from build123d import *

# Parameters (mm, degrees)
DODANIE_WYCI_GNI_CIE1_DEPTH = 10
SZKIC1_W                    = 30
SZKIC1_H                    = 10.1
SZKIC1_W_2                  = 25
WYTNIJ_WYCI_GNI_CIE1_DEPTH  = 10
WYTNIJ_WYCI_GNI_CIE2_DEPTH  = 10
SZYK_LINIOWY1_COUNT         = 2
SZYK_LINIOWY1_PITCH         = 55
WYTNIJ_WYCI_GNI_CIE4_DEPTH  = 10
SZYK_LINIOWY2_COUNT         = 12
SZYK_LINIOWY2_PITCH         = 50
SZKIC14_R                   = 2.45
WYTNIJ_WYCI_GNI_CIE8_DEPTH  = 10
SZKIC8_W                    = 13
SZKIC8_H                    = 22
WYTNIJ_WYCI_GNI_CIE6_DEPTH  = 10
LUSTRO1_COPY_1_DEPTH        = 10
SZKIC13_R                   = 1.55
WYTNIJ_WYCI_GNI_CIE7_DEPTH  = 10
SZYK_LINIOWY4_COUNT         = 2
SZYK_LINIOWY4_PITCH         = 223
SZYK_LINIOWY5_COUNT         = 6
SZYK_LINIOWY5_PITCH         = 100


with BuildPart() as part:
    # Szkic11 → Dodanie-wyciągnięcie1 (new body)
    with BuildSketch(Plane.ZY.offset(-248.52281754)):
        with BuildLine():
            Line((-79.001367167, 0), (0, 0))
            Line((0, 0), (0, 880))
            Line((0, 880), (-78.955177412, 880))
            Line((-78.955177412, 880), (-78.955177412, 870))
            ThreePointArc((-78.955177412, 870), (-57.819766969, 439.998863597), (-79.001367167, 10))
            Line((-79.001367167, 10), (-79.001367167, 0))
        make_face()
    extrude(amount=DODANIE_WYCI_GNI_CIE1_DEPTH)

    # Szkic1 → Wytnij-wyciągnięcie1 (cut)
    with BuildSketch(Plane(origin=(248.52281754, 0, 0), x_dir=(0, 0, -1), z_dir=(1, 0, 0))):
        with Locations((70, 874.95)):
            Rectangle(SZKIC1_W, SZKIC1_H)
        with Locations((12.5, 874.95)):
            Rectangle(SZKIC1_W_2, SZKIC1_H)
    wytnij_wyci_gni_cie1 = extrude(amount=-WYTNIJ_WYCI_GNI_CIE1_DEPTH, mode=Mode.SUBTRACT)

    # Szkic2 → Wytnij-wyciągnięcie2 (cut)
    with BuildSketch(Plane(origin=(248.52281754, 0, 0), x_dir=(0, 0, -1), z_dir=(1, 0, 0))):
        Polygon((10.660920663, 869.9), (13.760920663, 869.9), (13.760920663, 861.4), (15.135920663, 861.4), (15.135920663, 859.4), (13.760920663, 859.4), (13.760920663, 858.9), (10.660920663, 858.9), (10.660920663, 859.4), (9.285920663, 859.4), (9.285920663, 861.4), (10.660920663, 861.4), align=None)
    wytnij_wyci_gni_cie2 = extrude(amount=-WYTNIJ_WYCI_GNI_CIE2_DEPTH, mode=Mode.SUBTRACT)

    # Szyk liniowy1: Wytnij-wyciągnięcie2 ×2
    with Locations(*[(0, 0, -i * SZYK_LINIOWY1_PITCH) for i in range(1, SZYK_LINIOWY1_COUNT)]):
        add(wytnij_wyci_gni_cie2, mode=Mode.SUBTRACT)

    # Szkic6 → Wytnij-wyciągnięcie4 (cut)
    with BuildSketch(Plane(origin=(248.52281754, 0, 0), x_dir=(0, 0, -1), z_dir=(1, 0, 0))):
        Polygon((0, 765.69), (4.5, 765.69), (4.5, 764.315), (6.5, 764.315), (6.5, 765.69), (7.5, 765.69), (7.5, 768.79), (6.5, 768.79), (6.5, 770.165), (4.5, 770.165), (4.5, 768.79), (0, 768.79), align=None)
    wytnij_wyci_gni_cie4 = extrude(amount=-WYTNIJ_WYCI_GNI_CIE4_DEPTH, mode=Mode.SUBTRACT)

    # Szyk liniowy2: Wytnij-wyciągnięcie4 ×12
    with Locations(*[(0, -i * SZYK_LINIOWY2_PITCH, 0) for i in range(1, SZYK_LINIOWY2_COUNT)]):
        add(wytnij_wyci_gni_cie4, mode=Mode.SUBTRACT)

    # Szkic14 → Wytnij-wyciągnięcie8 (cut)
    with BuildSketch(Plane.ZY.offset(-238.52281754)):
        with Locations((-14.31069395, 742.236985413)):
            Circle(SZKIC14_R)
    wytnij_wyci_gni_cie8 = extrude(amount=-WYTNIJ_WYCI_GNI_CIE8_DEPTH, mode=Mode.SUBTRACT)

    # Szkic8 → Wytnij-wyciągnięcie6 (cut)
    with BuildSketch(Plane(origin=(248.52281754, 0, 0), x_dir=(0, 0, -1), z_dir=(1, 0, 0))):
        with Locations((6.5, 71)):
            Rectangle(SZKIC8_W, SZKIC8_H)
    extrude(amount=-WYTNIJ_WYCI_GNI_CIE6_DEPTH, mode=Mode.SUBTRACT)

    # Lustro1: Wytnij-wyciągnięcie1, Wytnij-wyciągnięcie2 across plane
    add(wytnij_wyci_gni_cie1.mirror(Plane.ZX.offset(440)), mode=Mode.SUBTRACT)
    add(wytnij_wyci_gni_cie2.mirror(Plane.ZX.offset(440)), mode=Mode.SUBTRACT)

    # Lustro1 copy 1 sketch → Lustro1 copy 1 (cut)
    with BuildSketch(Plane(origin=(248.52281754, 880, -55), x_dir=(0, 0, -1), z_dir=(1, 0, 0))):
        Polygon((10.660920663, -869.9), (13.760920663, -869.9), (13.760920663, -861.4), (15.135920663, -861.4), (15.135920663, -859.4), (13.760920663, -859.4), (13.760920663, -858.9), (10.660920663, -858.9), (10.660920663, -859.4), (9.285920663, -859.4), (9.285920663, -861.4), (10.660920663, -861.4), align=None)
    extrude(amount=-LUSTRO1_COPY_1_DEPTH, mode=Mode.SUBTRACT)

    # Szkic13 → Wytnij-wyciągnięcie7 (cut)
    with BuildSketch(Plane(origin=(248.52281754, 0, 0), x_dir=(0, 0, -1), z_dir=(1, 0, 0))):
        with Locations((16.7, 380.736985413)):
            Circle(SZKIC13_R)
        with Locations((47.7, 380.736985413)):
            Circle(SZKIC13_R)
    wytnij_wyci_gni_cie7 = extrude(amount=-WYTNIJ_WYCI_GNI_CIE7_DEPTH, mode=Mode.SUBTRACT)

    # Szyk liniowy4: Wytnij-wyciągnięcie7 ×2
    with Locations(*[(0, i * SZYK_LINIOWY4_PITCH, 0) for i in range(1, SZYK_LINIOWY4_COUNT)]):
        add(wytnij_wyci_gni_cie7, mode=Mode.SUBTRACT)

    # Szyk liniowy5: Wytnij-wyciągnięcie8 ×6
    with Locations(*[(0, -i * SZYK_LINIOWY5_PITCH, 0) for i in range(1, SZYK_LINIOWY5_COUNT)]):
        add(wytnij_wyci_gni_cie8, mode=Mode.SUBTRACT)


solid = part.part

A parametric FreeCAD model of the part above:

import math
import FreeCAD as App
import Part
import Sketcher
Q = App.Units.Quantity

doc = App.newDocument("Part")
body = doc.addObject("PartDesign::Body", "Body")

# Sketch on YZ plane
sketch1 = doc.addObject("Sketcher::SketchObject", "Sketch")
body.addObject(sketch1)
sketch1.AttachmentSupport = (doc.YZ_Plane, [""])
sketch1.MapMode = "FlatFace"
sketch1.AttachmentOffset = App.Placement(App.Vector(0, 0, 248.522818), App.Rotation())
sketch1.addGeometry([
    Part.LineSegment(App.Vector(0, -79, 0), App.Vector(0, 0, 0)),  # 0
    Part.LineSegment(App.Vector(0, 0, 0), App.Vector(880, 0, 0)),  # 1
    Part.LineSegment(App.Vector(880, 0, 0), App.Vector(880, -79, 0)),  # 2
    Part.LineSegment(App.Vector(880, -79, 0), App.Vector(870, -79, 0)),  # 3
    Part.ArcOfCircle(Part.Circle(App.Vector(440, -4438, 0), App.Vector(0, 0, 1), 4380), math.radians(84.37), math.radians(95.64)),  # 4
    Part.LineSegment(App.Vector(10, -79, 0), App.Vector(0, -79, 0)),  # 5
], False)
sketch1.addConstraint([
    Sketcher.Constraint("Coincident", 0, 2, 1, 1),
    Sketcher.Constraint("Coincident", 1, 2, 2, 1),
    Sketcher.Constraint("Coincident", 2, 2, 3, 1),
    Sketcher.Constraint("Coincident", 3, 2, 4, 1),
    Sketcher.Constraint("Coincident", 4, 2, 5, 1),
    Sketcher.Constraint("Coincident", 5, 2, 0, 1),
    Sketcher.Constraint("Vertical", 0),
    Sketcher.Constraint("Horizontal", 1),
    Sketcher.Constraint("Vertical", 2),
    Sketcher.Constraint("Horizontal", 3),
    Sketcher.Constraint("Horizontal", 5),
    Sketcher.Constraint("Coincident", 0, 2, -1, 1),
    Sketcher.Constraint("Equal", 3, 5),
    Sketcher.Constraint("DistanceX", 1, 1, 1, 2, Q("880 mm")),
    Sketcher.Constraint("DistanceX", 3, 2, 3, 1, Q("10 mm")),
    Sketcher.Constraint("Radius", 4, Q("4379.980528 mm")),
    Sketcher.Constraint("DistanceY", 0, 1, 0, 2, Q("79.001367 mm")),
    Sketcher.Constraint("DistanceY", 2, 2, 2, 1, Q("78.955177 mm")),
])
pad1 = doc.addObject("PartDesign::Pad", "Pad")
body.addObject(pad1)
pad1.Profile = sketch1
pad1.Length = 10
pad1.Reversed = True

# Sketch on YZ plane
sketch2 = doc.addObject("Sketcher::SketchObject", "Sketch001")
body.addObject(sketch2)
sketch2.AttachmentSupport = (doc.YZ_Plane, [""])
sketch2.MapMode = "FlatFace"
sketch2.AttachmentOffset = App.Placement(App.Vector(0, 0, 248.522818), App.Rotation())
sketch2.addGeometry([
    Part.LineSegment(App.Vector(880, -55, 0), App.Vector(870, -55, 0)),  # 0
    Part.LineSegment(App.Vector(870, -55, 0), App.Vector(870, -85, 0)),  # 1
    Part.LineSegment(App.Vector(870, -85, 0), App.Vector(880, -85, 0)),  # 2
    Part.LineSegment(App.Vector(880, -85, 0), App.Vector(880, -55, 0)),  # 3
    Part.LineSegment(App.Vector(880, 0, 0), App.Vector(870, 0, 0)),  # 4
    Part.LineSegment(App.Vector(870, 0, 0), App.Vector(870, -25, 0)),  # 5
    Part.LineSegment(App.Vector(870, -25, 0), App.Vector(880, -25, 0)),  # 6
    Part.LineSegment(App.Vector(880, -25, 0), App.Vector(880, 0, 0)),  # 7
], False)
sketch2.addConstraint([
    Sketcher.Constraint("Coincident", 0, 2, 1, 1),
    Sketcher.Constraint("Coincident", 1, 2, 2, 1),
    Sketcher.Constraint("Coincident", 2, 2, 3, 1),
    Sketcher.Constraint("Coincident", 3, 2, 0, 1),
    Sketcher.Constraint("Coincident", 4, 2, 5, 1),
    Sketcher.Constraint("Coincident", 5, 2, 6, 1),
    Sketcher.Constraint("Coincident", 6, 2, 7, 1),
    Sketcher.Constraint("Coincident", 7, 2, 4, 1),
    Sketcher.Constraint("Horizontal", 0),
    Sketcher.Constraint("Vertical", 1),
    Sketcher.Constraint("Horizontal", 2),
    Sketcher.Constraint("Vertical", 3),
    Sketcher.Constraint("Horizontal", 4),
    Sketcher.Constraint("Vertical", 5),
    Sketcher.Constraint("Horizontal", 6),
    Sketcher.Constraint("Vertical", 7),
    Sketcher.Constraint("PointOnObject", 4, 2, -1),
    Sketcher.Constraint("Vertical", 1, 2, 4, 2),
    Sketcher.Constraint("Vertical", 3, 2, 6, 2),
    Sketcher.Constraint("DistanceY", 1, 2, 1, 1, Q("30 mm")),
    Sketcher.Constraint("DistanceY", 5, 2, 5, 1, Q("25 mm")),
    Sketcher.Constraint("DistanceX", 0, 2, 0, 1, Q("10.1 mm")),
    Sketcher.Constraint("DistanceY", 0, 2, -1, 1, Q("55 mm")),
    Sketcher.Constraint("DistanceX", -1, 1, 2, 2, Q("880 mm")),
])
pocket1 = doc.addObject("PartDesign::Pocket", "Pocket")
body.addObject(pocket1)
pocket1.Profile = sketch2
pocket1.Length = 10

# Sketch on YZ plane
sketch3 = doc.addObject("Sketcher::SketchObject", "Sketch002")
body.addObject(sketch3)
sketch3.AttachmentSupport = (doc.YZ_Plane, [""])
sketch3.MapMode = "FlatFace"
sketch3.AttachmentOffset = App.Placement(App.Vector(0, 0, 248.522818), App.Rotation())
sketch3.addGeometry([
    Part.LineSegment(App.Vector(869.9, -13.8, 0), App.Vector(869.9, -10.7, 0)),  # 0
    Part.LineSegment(App.Vector(869.9, -10.7, 0), App.Vector(861.4, -10.7, 0)),  # 1
    Part.LineSegment(App.Vector(861.4, -10.7, 0), App.Vector(861.4, -9.3, 0)),  # 2
    Part.LineSegment(App.Vector(861.4, -9.3, 0), App.Vector(859.4, -9.3, 0)),  # 3
    Part.LineSegment(App.Vector(859.4, -9.3, 0), App.Vector(859.4, -10.7, 0)),  # 4
    Part.LineSegment(App.Vector(859.4, -10.7, 0), App.Vector(858.9, -10.7, 0)),  # 5
    Part.LineSegment(App.Vector(858.9, -10.7, 0), App.Vector(858.9, -13.8, 0)),  # 6
    Part.LineSegment(App.Vector(858.9, -13.8, 0), App.Vector(859.4, -13.8, 0)),  # 7
    Part.LineSegment(App.Vector(859.4, -13.8, 0), App.Vector(859.4, -15.1, 0)),  # 8
    Part.LineSegment(App.Vector(859.4, -15.1, 0), App.Vector(861.4, -15.1, 0)),  # 9
    Part.LineSegment(App.Vector(861.4, -15.1, 0), App.Vector(861.4, -13.8, 0)),  # 10
    Part.LineSegment(App.Vector(861.4, -13.8, 0), App.Vector(869.9, -13.8, 0)),  # 11
], False)
sketch3.addConstraint([
    Sketcher.Constraint("Coincident", 0, 2, 1, 1),
    Sketcher.Constraint("Coincident", 1, 2, 2, 1),
    Sketcher.Constraint("Coincident", 2, 2, 3, 1),
    Sketcher.Constraint("Coincident", 3, 2, 4, 1),
    Sketcher.Constraint("Coincident", 4, 2, 5, 1),
    Sketcher.Constraint("Coincident", 5, 2, 6, 1),
    Sketcher.Constraint("Coincident", 6, 2, 7, 1),
    Sketcher.Constraint("Coincident", 7, 2, 8, 1),
    Sketcher.Constraint("Coincident", 8, 2, 9, 1),
    Sketcher.Constraint("Coincident", 9, 2, 10, 1),
    Sketcher.Constraint("Coincident", 10, 2, 11, 1),
    Sketcher.Constraint("Coincident", 11, 2, 0, 1),
    Sketcher.Constraint("Vertical", 0),
    Sketcher.Constraint("Horizontal", 1),
    Sketcher.Constraint("Vertical", 2),
    Sketcher.Constraint("Horizontal", 3),
    Sketcher.Constraint("Vertical", 4),
    Sketcher.Constraint("Horizontal", 5),
    Sketcher.Constraint("Vertical", 6),
    Sketcher.Constraint("Horizontal", 7),
    Sketcher.Constraint("Vertical", 8),
    Sketcher.Constraint("Horizontal", 9),
    Sketcher.Constraint("Vertical", 10),
    Sketcher.Constraint("Horizontal", 11),
    Sketcher.Constraint("Horizontal", 1, 2, 4, 2),
    Sketcher.Constraint("Horizontal", 7, 2, 10, 2),
    Sketcher.Constraint("Vertical", 4, 2, 7, 2),
    Sketcher.Constraint("Vertical", 2, 2, 9, 2),
    Sketcher.Constraint("Equal", 4, 8),
    Sketcher.Constraint("DistanceX", 3, 2, 3, 1, Q("2 mm")),
    Sketcher.Constraint("DistanceX", 1, 2, 1, 1, Q("8.5 mm")),
    Sketcher.Constraint("DistanceX", 5, 2, 5, 1, Q("0.5 mm")),
    Sketcher.Constraint("DistanceY", 0, 1, 0, 2, Q("3.1 mm")),
    Sketcher.Constraint("DistanceX", -1, 1, 0, 2, Q("869.9 mm")),
    Sketcher.Constraint("DistanceY", 2, 1, 2, 2, Q("1.375 mm")),
    Sketcher.Constraint("DistanceY", 0, 2, -1, 1, Q("10.660921 mm")),
])
pocket2 = doc.addObject("PartDesign::Pocket", "Pocket001")
body.addObject(pocket2)
pocket2.Profile = sketch3
pocket2.Length = 10
doc.recompute()

linearpattern = doc.addObject("PartDesign::LinearPattern", "LinearPattern")
body.addObject(linearpattern)
linearpattern.Originals = [pocket2]
linearpattern.Direction = (doc.Z_Axis, [""])
linearpattern.Mode = "offset"
linearpattern.Offset = 55
linearpattern.Occurrences = 2
linearpattern.Reversed = True
body.Tip = linearpattern

# Sketch on YZ plane
sketch4 = doc.addObject("Sketcher::SketchObject", "Sketch003")
body.addObject(sketch4)
sketch4.AttachmentSupport = (doc.YZ_Plane, [""])
sketch4.MapMode = "FlatFace"
sketch4.AttachmentOffset = App.Placement(App.Vector(0, 0, 248.522818), App.Rotation())
sketch4.addGeometry([
    Part.LineSegment(App.Vector(765.7, 0, 0), App.Vector(765.7, -4.5, 0)),  # 0
    Part.LineSegment(App.Vector(765.7, -4.5, 0), App.Vector(764.3, -4.5, 0)),  # 1
    Part.LineSegment(App.Vector(764.3, -4.5, 0), App.Vector(764.3, -6.5, 0)),  # 2
    Part.LineSegment(App.Vector(764.3, -6.5, 0), App.Vector(765.7, -6.5, 0)),  # 3
    Part.LineSegment(App.Vector(765.7, -6.5, 0), App.Vector(765.7, -7.5, 0)),  # 4
    Part.LineSegment(App.Vector(765.7, -7.5, 0), App.Vector(768.8, -7.5, 0)),  # 5
    Part.LineSegment(App.Vector(768.8, -7.5, 0), App.Vector(768.8, -6.5, 0)),  # 6
    Part.LineSegment(App.Vector(768.8, -6.5, 0), App.Vector(770.2, -6.5, 0)),  # 7
    Part.LineSegment(App.Vector(770.2, -6.5, 0), App.Vector(770.2, -4.5, 0)),  # 8
    Part.LineSegment(App.Vector(770.2, -4.5, 0), App.Vector(768.8, -4.5, 0)),  # 9
    Part.LineSegment(App.Vector(768.8, -4.5, 0), App.Vector(768.8, 0, 0)),  # 10
    Part.LineSegment(App.Vector(768.8, 0, 0), App.Vector(765.7, 0, 0)),  # 11
], False)
sketch4.addConstraint([
    Sketcher.Constraint("Coincident", 0, 2, 1, 1),
    Sketcher.Constraint("Coincident", 1, 2, 2, 1),
    Sketcher.Constraint("Coincident", 2, 2, 3, 1),
    Sketcher.Constraint("Coincident", 3, 2, 4, 1),
    Sketcher.Constraint("Coincident", 4, 2, 5, 1),
    Sketcher.Constraint("Coincident", 5, 2, 6, 1),
    Sketcher.Constraint("Coincident", 6, 2, 7, 1),
    Sketcher.Constraint("Coincident", 7, 2, 8, 1),
    Sketcher.Constraint("Coincident", 8, 2, 9, 1),
    Sketcher.Constraint("Coincident", 9, 2, 10, 1),
    Sketcher.Constraint("Coincident", 10, 2, 11, 1),
    Sketcher.Constraint("Coincident", 11, 2, 0, 1),
    Sketcher.Constraint("Vertical", 0),
    Sketcher.Constraint("Horizontal", 1),
    Sketcher.Constraint("Vertical", 2),
    Sketcher.Constraint("Horizontal", 3),
    Sketcher.Constraint("Vertical", 4),
    Sketcher.Constraint("Horizontal", 5),
    Sketcher.Constraint("Vertical", 6),
    Sketcher.Constraint("Horizontal", 7),
    Sketcher.Constraint("Vertical", 8),
    Sketcher.Constraint("Horizontal", 9),
    Sketcher.Constraint("Vertical", 10),
    Sketcher.Constraint("Horizontal", 11),
    Sketcher.Constraint("PointOnObject", 10, 2, -1),
    Sketcher.Constraint("Horizontal", 3, 2, 6, 2),
    Sketcher.Constraint("Horizontal", 1, 2, 8, 2),
    Sketcher.Constraint("Vertical", 0, 2, 3, 2),
    Sketcher.Constraint("Vertical", 6, 2, 9, 2),
    Sketcher.Constraint("Equal", 3, 7),
    Sketcher.Constraint("DistanceY", 2, 2, 2, 1, Q("2 mm")),
    Sketcher.Constraint("DistanceY", 4, 2, 4, 1, Q("1 mm")),
    Sketcher.Constraint("DistanceX", 5, 1, 5, 2, Q("3.1 mm")),
    Sketcher.Constraint("DistanceY", 0, 2, 0, 1, Q("4.5 mm")),
    Sketcher.Constraint("DistanceX", 1, 2, 1, 1, Q("1.375 mm")),
    Sketcher.Constraint("DistanceX", -1, 1, 0, 2, Q("765.69 mm")),
])
pocket3 = doc.addObject("PartDesign::Pocket", "Pocket002")
body.addObject(pocket3)
pocket3.Profile = sketch4
pocket3.Length = 10
doc.recompute()

linearpattern2 = doc.addObject("PartDesign::LinearPattern", "LinearPattern001")
body.addObject(linearpattern2)
linearpattern2.Originals = [pocket3]
linearpattern2.Direction = (doc.Y_Axis, [""])
linearpattern2.Mode = "offset"
linearpattern2.Offset = 50
linearpattern2.Occurrences = 12
linearpattern2.Reversed = True
body.Tip = linearpattern2

# Sketch on YZ plane
sketch5 = doc.addObject("Sketcher::SketchObject", "Sketch004")
body.addObject(sketch5)
sketch5.AttachmentSupport = (doc.YZ_Plane, [""])
sketch5.MapMode = "FlatFace"
sketch5.AttachmentOffset = App.Placement(App.Vector(0, 0, 238.522818), App.Rotation())
sketch5.addGeometry(Part.Circle(App.Vector(742.2, -14.3, 0), App.Vector(0, 0, 1), 2.5), False)
sketch5.addConstraint([
    Sketcher.Constraint("Diameter", 0, Q("4.9 mm")),
    Sketcher.Constraint("DistanceX", -1, 1, 0, 3, Q("742.236985 mm")),
    Sketcher.Constraint("DistanceY", 0, 3, -1, 1, Q("14.310694 mm")),
])
pocket4 = doc.addObject("PartDesign::Pocket", "Pocket003")
body.addObject(pocket4)
pocket4.Profile = sketch5
pocket4.Length = 10
pocket4.Reversed = True

# Sketch on YZ plane
sketch6 = doc.addObject("Sketcher::SketchObject", "Sketch005")
body.addObject(sketch6)
sketch6.AttachmentSupport = (doc.YZ_Plane, [""])
sketch6.MapMode = "FlatFace"
sketch6.AttachmentOffset = App.Placement(App.Vector(0, 0, 248.522818), App.Rotation())
sketch6.addGeometry([
    Part.LineSegment(App.Vector(82, 0, 0), App.Vector(60, 0, 0)),
    Part.LineSegment(App.Vector(60, 0, 0), App.Vector(60, -13, 0)),
    Part.LineSegment(App.Vector(60, -13, 0), App.Vector(82, -13, 0)),
    Part.LineSegment(App.Vector(82, -13, 0), App.Vector(82, 0, 0)),
], False)
sketch6.addConstraint([
    Sketcher.Constraint("Coincident", 0, 2, 1, 1),
    Sketcher.Constraint("Coincident", 1, 2, 2, 1),
    Sketcher.Constraint("Coincident", 2, 2, 3, 1),
    Sketcher.Constraint("Coincident", 3, 2, 0, 1),
    Sketcher.Constraint("Horizontal", 0),
    Sketcher.Constraint("Vertical", 1),
    Sketcher.Constraint("Horizontal", 2),
    Sketcher.Constraint("Vertical", 3),
    Sketcher.Constraint("PointOnObject", 0, 2, -1),
    Sketcher.Constraint("DistanceX", 0, 2, 0, 1, Q("22 mm")),
    Sketcher.Constraint("DistanceY", 1, 2, 1, 1, Q("13 mm")),
    Sketcher.Constraint("DistanceX", -1, 1, 0, 2, Q("60 mm")),
])
pocket5 = doc.addObject("PartDesign::Pocket", "Pocket004")
body.addObject(pocket5)
pocket5.Profile = sketch6
pocket5.Length = 10
doc.recompute()

datumplane = doc.addObject("PartDesign::Plane", "DatumPlane")
body.addObject(datumplane)
datumplane.AttachmentSupport = (doc.XZ_Plane, [""])
datumplane.MapMode = "FlatFace"
datumplane.AttachmentOffset = App.Placement(App.Vector(0, 0, -440), App.Rotation())
mirrored = doc.addObject("PartDesign::Mirrored", "Mirrored")
body.addObject(mirrored)
mirrored.Originals = [pocket1, pocket2]
mirrored.MirrorPlane = (datumplane, [""])
body.Tip = mirrored

# Sketch on YZ plane
sketch7 = doc.addObject("Sketcher::SketchObject", "Sketch006")
body.addObject(sketch7)
sketch7.AttachmentSupport = (doc.YZ_Plane, [""])
sketch7.MapMode = "FlatFace"
sketch7.AttachmentOffset = App.Placement(App.Vector(0, 0, 248.522818), App.Rotation())
sketch7.addGeometry([
    Part.LineSegment(App.Vector(10.1, -65.7, 0), App.Vector(10.1, -68.8, 0)),  # 0
    Part.LineSegment(App.Vector(10.1, -68.8, 0), App.Vector(18.6, -68.8, 0)),  # 1
    Part.LineSegment(App.Vector(18.6, -68.8, 0), App.Vector(18.6, -70.1, 0)),  # 2
    Part.LineSegment(App.Vector(18.6, -70.1, 0), App.Vector(20.6, -70.1, 0)),  # 3
    Part.LineSegment(App.Vector(20.6, -70.1, 0), App.Vector(20.6, -68.8, 0)),  # 4
    Part.LineSegment(App.Vector(20.6, -68.8, 0), App.Vector(21.1, -68.8, 0)),  # 5
    Part.LineSegment(App.Vector(21.1, -68.8, 0), App.Vector(21.1, -65.7, 0)),  # 6
    Part.LineSegment(App.Vector(21.1, -65.7, 0), App.Vector(20.6, -65.7, 0)),  # 7
    Part.LineSegment(App.Vector(20.6, -65.7, 0), App.Vector(20.6, -64.3, 0)),  # 8
    Part.LineSegment(App.Vector(20.6, -64.3, 0), App.Vector(18.6, -64.3, 0)),  # 9
    Part.LineSegment(App.Vector(18.6, -64.3, 0), App.Vector(18.6, -65.7, 0)),  # 10
    Part.LineSegment(App.Vector(18.6, -65.7, 0), App.Vector(10.1, -65.7, 0)),  # 11
], False)
sketch7.addConstraint([
    Sketcher.Constraint("Coincident", 0, 2, 1, 1),
    Sketcher.Constraint("Coincident", 1, 2, 2, 1),
    Sketcher.Constraint("Coincident", 2, 2, 3, 1),
    Sketcher.Constraint("Coincident", 3, 2, 4, 1),
    Sketcher.Constraint("Coincident", 4, 2, 5, 1),
    Sketcher.Constraint("Coincident", 5, 2, 6, 1),
    Sketcher.Constraint("Coincident", 6, 2, 7, 1),
    Sketcher.Constraint("Coincident", 7, 2, 8, 1),
    Sketcher.Constraint("Coincident", 8, 2, 9, 1),
    Sketcher.Constraint("Coincident", 9, 2, 10, 1),
    Sketcher.Constraint("Coincident", 10, 2, 11, 1),
    Sketcher.Constraint("Coincident", 11, 2, 0, 1),
    Sketcher.Constraint("Vertical", 0),
    Sketcher.Constraint("Horizontal", 1),
    Sketcher.Constraint("Vertical", 2),
    Sketcher.Constraint("Horizontal", 3),
    Sketcher.Constraint("Vertical", 4),
    Sketcher.Constraint("Horizontal", 5),
    Sketcher.Constraint("Vertical", 6),
    Sketcher.Constraint("Horizontal", 7),
    Sketcher.Constraint("Vertical", 8),
    Sketcher.Constraint("Horizontal", 9),
    Sketcher.Constraint("Vertical", 10),
    Sketcher.Constraint("Horizontal", 11),
    Sketcher.Constraint("Horizontal", 1, 2, 4, 2),
    Sketcher.Constraint("Horizontal", 7, 2, 10, 2),
    Sketcher.Constraint("Vertical", 4, 2, 7, 2),
    Sketcher.Constraint("Vertical", 2, 2, 9, 2),
    Sketcher.Constraint("Equal", 4, 8),
    Sketcher.Constraint("DistanceX", 3, 1, 3, 2, Q("2 mm")),
    Sketcher.Constraint("DistanceX", 1, 1, 1, 2, Q("8.5 mm")),
    Sketcher.Constraint("DistanceX", 5, 1, 5, 2, Q("0.5 mm")),
    Sketcher.Constraint("DistanceY", 0, 2, 0, 1, Q("3.1 mm")),
    Sketcher.Constraint("DistanceX", -1, 1, 0, 2, Q("10.1 mm")),
    Sketcher.Constraint("DistanceY", 2, 2, 2, 1, Q("1.375 mm")),
    Sketcher.Constraint("DistanceY", 0, 2, -1, 1, Q("68.760921 mm")),
])
pocket6 = doc.addObject("PartDesign::Pocket", "Pocket005")
body.addObject(pocket6)
pocket6.Profile = sketch7
pocket6.Length = 10

# Sketch on YZ plane
sketch8 = doc.addObject("Sketcher::SketchObject", "Sketch007")
body.addObject(sketch8)
sketch8.AttachmentSupport = (doc.YZ_Plane, [""])
sketch8.MapMode = "FlatFace"
sketch8.AttachmentOffset = App.Placement(App.Vector(0, 0, 248.522818), App.Rotation())
sketch8.addGeometry([
    Part.Circle(App.Vector(380.7, -16.7, 0), App.Vector(0, 0, 1), 1.6),
    Part.Circle(App.Vector(380.7, -47.7, 0), App.Vector(0, 0, 1), 1.6),
], False)
sketch8.addConstraint([
    Sketcher.Constraint("Equal", 0, 1),
    Sketcher.Constraint("Vertical", 0, 3, 1, 3),
    Sketcher.Constraint("Diameter", 0, Q("3.1 mm")),
    Sketcher.Constraint("DistanceY", 1, 3, 0, 3, Q("31 mm")),
    Sketcher.Constraint("DistanceY", 0, 3, -1, 1, Q("16.7 mm")),
    Sketcher.Constraint("DistanceX", -1, 1, 0, 3, Q("380.736985 mm")),
])
pocket7 = doc.addObject("PartDesign::Pocket", "Pocket006")
body.addObject(pocket7)
pocket7.Profile = sketch8
pocket7.Length = 10
doc.recompute()

linearpattern3 = doc.addObject("PartDesign::LinearPattern", "LinearPattern002")
body.addObject(linearpattern3)
linearpattern3.Originals = [pocket7]
linearpattern3.Direction = (doc.Y_Axis, [""])
linearpattern3.Mode = "offset"
linearpattern3.Offset = 223
linearpattern3.Occurrences = 2
body.Tip = linearpattern3
doc.recompute()

linearpattern4 = doc.addObject("PartDesign::LinearPattern", "LinearPattern003")
body.addObject(linearpattern4)
linearpattern4.Originals = [pocket4]
linearpattern4.Direction = (doc.Y_Axis, [""])
linearpattern4.Mode = "offset"
linearpattern4.Offset = 100
linearpattern4.Occurrences = 6
linearpattern4.Reversed = True
body.Tip = linearpattern4

doc.recompute()
